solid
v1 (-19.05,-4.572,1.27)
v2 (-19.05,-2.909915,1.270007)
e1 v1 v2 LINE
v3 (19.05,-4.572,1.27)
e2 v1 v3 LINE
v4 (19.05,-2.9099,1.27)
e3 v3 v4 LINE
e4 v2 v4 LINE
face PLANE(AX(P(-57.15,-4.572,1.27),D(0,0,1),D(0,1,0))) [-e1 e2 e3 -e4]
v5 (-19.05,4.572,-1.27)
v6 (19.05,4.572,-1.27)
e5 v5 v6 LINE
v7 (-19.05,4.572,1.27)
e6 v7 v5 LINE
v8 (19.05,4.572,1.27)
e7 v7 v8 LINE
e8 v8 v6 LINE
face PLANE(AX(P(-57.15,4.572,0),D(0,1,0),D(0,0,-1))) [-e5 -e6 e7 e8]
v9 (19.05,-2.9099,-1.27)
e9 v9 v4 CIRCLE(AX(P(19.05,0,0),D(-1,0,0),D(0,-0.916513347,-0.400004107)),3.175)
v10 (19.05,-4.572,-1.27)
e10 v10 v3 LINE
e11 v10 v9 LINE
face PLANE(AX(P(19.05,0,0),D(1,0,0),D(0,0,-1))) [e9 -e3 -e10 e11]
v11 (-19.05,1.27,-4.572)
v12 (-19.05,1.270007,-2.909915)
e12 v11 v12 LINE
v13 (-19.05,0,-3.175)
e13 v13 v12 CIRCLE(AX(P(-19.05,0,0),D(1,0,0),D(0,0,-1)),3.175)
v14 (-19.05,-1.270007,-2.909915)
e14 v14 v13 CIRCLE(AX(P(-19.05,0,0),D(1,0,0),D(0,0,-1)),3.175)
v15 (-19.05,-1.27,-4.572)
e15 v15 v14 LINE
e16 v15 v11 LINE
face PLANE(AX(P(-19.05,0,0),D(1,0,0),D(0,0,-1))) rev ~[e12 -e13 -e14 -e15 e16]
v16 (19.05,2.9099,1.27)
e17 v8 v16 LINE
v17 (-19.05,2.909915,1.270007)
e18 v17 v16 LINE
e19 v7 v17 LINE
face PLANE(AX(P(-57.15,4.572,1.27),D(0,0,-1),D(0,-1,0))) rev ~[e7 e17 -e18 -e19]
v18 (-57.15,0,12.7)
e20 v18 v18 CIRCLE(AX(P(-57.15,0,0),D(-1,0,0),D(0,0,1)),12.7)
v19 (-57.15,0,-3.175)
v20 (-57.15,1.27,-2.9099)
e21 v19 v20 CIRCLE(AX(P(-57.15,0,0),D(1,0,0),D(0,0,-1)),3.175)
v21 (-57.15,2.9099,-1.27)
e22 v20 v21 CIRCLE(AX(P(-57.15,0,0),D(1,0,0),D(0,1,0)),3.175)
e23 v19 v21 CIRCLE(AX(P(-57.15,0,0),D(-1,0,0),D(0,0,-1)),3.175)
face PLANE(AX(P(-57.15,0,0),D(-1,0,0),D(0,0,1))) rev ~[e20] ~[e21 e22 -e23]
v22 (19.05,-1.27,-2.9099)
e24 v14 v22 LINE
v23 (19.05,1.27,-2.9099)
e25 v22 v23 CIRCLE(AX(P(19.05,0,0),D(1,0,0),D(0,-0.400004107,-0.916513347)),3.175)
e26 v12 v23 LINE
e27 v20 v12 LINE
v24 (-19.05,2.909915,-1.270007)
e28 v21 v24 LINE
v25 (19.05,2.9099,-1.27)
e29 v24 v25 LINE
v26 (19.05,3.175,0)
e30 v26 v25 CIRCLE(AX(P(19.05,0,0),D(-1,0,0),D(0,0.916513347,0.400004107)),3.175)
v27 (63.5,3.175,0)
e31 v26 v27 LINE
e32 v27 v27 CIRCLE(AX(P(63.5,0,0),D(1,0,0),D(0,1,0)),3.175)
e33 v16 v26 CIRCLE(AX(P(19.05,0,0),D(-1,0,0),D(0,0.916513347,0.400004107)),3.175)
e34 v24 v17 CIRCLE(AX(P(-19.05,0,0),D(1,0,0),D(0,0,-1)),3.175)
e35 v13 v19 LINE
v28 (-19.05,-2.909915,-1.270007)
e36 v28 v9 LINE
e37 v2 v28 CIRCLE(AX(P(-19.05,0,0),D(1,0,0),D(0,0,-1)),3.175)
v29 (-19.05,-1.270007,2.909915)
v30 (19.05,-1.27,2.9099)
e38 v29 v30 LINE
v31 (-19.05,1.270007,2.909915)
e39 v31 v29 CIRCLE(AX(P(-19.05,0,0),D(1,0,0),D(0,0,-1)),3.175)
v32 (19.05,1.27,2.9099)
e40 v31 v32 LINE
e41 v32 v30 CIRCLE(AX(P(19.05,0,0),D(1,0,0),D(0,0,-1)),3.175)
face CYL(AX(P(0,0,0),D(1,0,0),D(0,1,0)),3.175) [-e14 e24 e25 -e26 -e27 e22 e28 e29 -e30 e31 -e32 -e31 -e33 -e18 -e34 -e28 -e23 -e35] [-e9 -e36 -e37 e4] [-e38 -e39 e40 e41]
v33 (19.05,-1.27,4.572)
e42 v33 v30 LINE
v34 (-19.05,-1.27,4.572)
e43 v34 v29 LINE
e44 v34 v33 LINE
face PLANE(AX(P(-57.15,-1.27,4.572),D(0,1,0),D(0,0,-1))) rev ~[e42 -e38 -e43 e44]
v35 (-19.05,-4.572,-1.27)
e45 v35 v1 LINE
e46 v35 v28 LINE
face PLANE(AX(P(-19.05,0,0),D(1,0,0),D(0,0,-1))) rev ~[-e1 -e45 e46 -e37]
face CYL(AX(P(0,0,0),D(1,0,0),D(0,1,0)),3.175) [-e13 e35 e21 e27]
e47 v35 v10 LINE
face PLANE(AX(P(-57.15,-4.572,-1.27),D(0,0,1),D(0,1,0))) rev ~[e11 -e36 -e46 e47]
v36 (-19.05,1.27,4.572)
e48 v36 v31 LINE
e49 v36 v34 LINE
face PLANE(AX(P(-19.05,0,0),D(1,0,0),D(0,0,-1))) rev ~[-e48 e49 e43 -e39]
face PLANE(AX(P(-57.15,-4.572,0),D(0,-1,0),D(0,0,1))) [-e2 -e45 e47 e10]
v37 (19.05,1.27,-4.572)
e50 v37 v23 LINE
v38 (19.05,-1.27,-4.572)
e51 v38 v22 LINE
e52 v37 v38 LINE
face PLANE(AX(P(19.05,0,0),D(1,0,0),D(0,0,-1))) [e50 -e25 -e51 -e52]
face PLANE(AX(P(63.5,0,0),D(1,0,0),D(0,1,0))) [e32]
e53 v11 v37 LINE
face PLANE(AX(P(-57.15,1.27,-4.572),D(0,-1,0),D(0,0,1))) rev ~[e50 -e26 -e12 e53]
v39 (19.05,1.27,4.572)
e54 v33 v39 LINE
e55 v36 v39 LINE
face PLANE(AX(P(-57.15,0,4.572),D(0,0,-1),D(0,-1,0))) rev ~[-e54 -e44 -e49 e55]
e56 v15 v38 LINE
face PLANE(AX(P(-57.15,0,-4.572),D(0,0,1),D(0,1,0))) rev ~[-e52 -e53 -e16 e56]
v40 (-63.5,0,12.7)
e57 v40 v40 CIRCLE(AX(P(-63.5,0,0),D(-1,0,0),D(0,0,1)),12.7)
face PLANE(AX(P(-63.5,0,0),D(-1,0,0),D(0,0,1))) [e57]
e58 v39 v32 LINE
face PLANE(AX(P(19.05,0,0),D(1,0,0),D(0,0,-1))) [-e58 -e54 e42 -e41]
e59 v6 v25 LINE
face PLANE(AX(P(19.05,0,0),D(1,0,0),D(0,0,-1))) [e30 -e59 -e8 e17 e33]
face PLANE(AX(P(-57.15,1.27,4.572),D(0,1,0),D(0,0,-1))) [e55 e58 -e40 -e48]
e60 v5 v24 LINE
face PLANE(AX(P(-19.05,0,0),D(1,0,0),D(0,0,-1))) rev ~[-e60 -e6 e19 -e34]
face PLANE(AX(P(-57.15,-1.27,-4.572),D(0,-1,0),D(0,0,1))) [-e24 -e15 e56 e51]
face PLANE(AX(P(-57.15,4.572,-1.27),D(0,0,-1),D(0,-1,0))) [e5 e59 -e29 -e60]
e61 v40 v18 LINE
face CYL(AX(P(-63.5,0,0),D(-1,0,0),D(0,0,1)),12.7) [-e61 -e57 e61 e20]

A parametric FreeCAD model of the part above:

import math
import FreeCAD as App
import Part
import Sketcher

V = App.Vector
Q = App.Units.Quantity

doc = App.newDocument("Part")
body = doc.addObject("PartDesign::Body", "Body")

sketch1 = body.newObject("Sketcher::SketchObject", "Sketch")
sketch1.AttachmentSupport = (doc.getObject("YZ_Plane"), [""])
sketch1.MapMode = "FlatFace"
sketch1.addGeometry(Part.Circle(V(0, 0, 0), V(0, 0, 1), 3.2), False)
sketch1.addConstraint([
    Sketcher.Constraint("Coincident", 0, 3, -1, 1),
    Sketcher.Constraint("Diameter", 0, Q("0.25 in")),
])
pad1 = body.newObject("PartDesign::Pad", "Pad")
pad1.Profile = sketch1
pad1.Length = Q("5 in")
pad1.Midplane = True

sketch2 = body.newObject("Sketcher::SketchObject", "Sketch001")
sketch2.AttachmentSupport = (doc.getObject("YZ_Plane"), [""])
sketch2.MapMode = "FlatFace"
sketch2.AttachmentOffset = App.Placement(V(0, 0, -2.5 * 25.4), App.Rotation())
sketch2.addGeometry(Part.Circle(V(0, 0, 0), V(0, 0, 1), 13), False)
sketch2.addConstraint([
    Sketcher.Constraint("Coincident", 0, 3, -1, 1),
    Sketcher.Constraint("Diameter", 0, Q("1 in")),
])
pad2 = body.newObject("PartDesign::Pad", "Pad001")
pad2.Profile = sketch2
pad2.Length = Q("0.25 in")

sketch3 = body.newObject("Sketcher::SketchObject", "Sketch002")
sketch3.AttachmentSupport = (doc.getObject("YZ_Plane"), [""])
sketch3.MapMode = "FlatFace"
sketch3.AttachmentOffset = App.Placement(V(0, 0, -2.25 * 25.4), App.Rotation())
sketch3.addGeometry([
    Part.LineSegment(V(4.6, -1.3, 0), V(4.6, 1.3, 0)),
    Part.LineSegment(V(4.6, 1.3, 0), V(2.9, 1.3, 0)),
    Part.ArcOfCircle(Part.Circle(V(0, 0, 0), V(0, 0, 1), 3.2), math.radians(-24), math.radians(24)),
    Part.LineSegment(V(2.9, -1.3, 0), V(4.6, -1.3, 0)),
    Part.LineSegment(V(-4.6, 1.3, 0), V(-4.6, -1.3, 0)),
    Part.LineSegment(V(-4.6, -1.3, 0), V(-2.9, -1.3, 0)),
    Part.ArcOfCircle(Part.Circle(V(0, 0, 0), V(0, 0, 1), 3.2), math.radians(156), math.radians(204)),
    Part.LineSegment(V(-2.9, 1.3, 0), V(-4.6, 1.3, 0)),
    Part.LineSegment(V(1.3, -4.6, 0), V(1.3, -2.9, 0)),
    Part.ArcOfCircle(Part.Circle(V(0, 0, 0), V(0, 0, 1), 3.2), math.radians(-114), math.radians(-66)),
    Part.LineSegment(V(-1.3, -2.9, 0), V(-1.3, -4.6, 0)),
    Part.LineSegment(V(-1.3, -4.6, 0), V(1.3, -4.6, 0)),
    Part.ArcOfCircle(Part.Circle(V(0, 0, 0), V(0, 0, 1), 3.2), math.radians(66), math.radians(114)),
    Part.LineSegment(V(1.3, 2.9, 0), V(1.3, 4.6, 0)),
    Part.LineSegment(V(1.3, 4.6, 0), V(-1.3, 4.6, 0)),
    Part.LineSegment(V(-1.3, 4.6, 0), V(-1.3, 2.9, 0)),
], False)
sketch3.addConstraint([
    Sketcher.Constraint("Coincident", 0, 2, 1, 1),
    Sketcher.Constraint("Coincident", 1, 2, 2, 2),
    Sketcher.Constraint("Coincident", 2, 1, 3, 1),
    Sketcher.Constraint("Coincident", 3, 2, 0, 1),
    Sketcher.Constraint("Coincident", 4, 2, 5, 1),
    Sketcher.Constraint("Coincident", 5, 2, 6, 2),
    Sketcher.Constraint("Coincident", 6, 1, 7, 1),
    Sketcher.Constraint("Coincident", 7, 2, 4, 1),
    Sketcher.Constraint("Coincident", 8, 2, 9, 2),
    Sketcher.Constraint("Coincident", 9, 1, 10, 1),
    Sketcher.Constraint("Coincident", 10, 2, 11, 1),
    Sketcher.Constraint("Coincident", 11, 2, 8, 1),
    Sketcher.Constraint("Coincident", 12, 1, 13, 1),
    Sketcher.Constraint("Coincident", 13, 2, 14, 1),
    Sketcher.Constraint("Coincident", 14, 2, 15, 1),
    Sketcher.Constraint("Coincident", 15, 2, 12, 2),
    Sketcher.Constraint("Vertical", 0),
    Sketcher.Constraint("Horizontal", 1),
    Sketcher.Constraint("Horizontal", 3),
    Sketcher.Constraint("Vertical", 4),
    Sketcher.Constraint("Horizontal", 5),
    Sketcher.Constraint("Horizontal", 7),
    Sketcher.Constraint("Vertical", 8),
    Sketcher.Constraint("Vertical", 10),
    Sketcher.Constraint("Horizontal", 11),
    Sketcher.Constraint("Vertical", 13),
    Sketcher.Constraint("Horizontal", 14),
    Sketcher.Constraint("Vertical", 15),
    Sketcher.Constraint("Coincident", 2, 3, -1, 1),
    Sketcher.Constraint("Coincident", 6, 3, -1, 1),
    Sketcher.Constraint("Coincident", 9, 3, -1, 1),
    Sketcher.Constraint("Coincident", 12, 3, -1, 1),
    Sketcher.Constraint("Equal", 2, 6),
    Sketcher.Constraint("Equal", 6, 9),
    Sketcher.Constraint("Equal", 9, 12),
    Sketcher.Constraint("Symmetric", 0, 2, 4, 2, -1, 1),
    Sketcher.Constraint("Symmetric", 10, 2, 13, 2, -1, 1),
    Sketcher.Constraint("Horizontal", 3, 2, 4, 2),
    Sketcher.Constraint("Horizontal", 1, 2, 6, 1),
    Sketcher.Constraint("Horizontal", 8, 2, 9, 1),
    Sketcher.Constraint("Horizontal", 12, 1, 15, 2),
    Sketcher.Constraint("Equal", 14, 0),
    Sketcher.Constraint("Equal", 7, 8),
    Sketcher.Constraint("DistanceY", -1, 1, 0, 2, Q("0.05 in")),
    Sketcher.Constraint("Radius", 2, Q("0.125 in")),
    Sketcher.Constraint("DistanceX", -1, 1, 0, 2, Q("0.18 in")),
])
pad3 = body.newObject("PartDesign::Pad", "Pad002")
pad3.Profile = sketch3
pad3.Length = Q("3 in")

sketch4 = body.newObject("Sketcher::SketchObject", "Sketch003")
sketch4.AttachmentSupport = (doc.getObject("YZ_Plane"), [""])
sketch4.MapMode = "FlatFace"
sketch4.AttachmentOffset = App.Placement(V(0, 0, -0.75 * 25.4), App.Rotation())
sketch4.addGeometry([
    Part.Circle(V(0, 0, 0), V(0, 0, 1), 5.4),
    Part.Circle(V(0, 0, 0), V(0, 0, 1), 3.2),
], False)
sketch4.addConstraint([
    Sketcher.Constraint("Coincident", 0, 3, -1, 1),
    Sketcher.Constraint("Coincident", 1, 3, -1, 1),
    Sketcher.Constraint("Diameter", 1, Q("0.25 in")),
    Sketcher.Constraint("Diameter", 0, 10.8418),
])
pocket1 = body.newObject("PartDesign::Pocket", "Pocket")
pocket1.Profile = sketch4
pocket1.Length = Q("1.5 in")

doc.recompute()
